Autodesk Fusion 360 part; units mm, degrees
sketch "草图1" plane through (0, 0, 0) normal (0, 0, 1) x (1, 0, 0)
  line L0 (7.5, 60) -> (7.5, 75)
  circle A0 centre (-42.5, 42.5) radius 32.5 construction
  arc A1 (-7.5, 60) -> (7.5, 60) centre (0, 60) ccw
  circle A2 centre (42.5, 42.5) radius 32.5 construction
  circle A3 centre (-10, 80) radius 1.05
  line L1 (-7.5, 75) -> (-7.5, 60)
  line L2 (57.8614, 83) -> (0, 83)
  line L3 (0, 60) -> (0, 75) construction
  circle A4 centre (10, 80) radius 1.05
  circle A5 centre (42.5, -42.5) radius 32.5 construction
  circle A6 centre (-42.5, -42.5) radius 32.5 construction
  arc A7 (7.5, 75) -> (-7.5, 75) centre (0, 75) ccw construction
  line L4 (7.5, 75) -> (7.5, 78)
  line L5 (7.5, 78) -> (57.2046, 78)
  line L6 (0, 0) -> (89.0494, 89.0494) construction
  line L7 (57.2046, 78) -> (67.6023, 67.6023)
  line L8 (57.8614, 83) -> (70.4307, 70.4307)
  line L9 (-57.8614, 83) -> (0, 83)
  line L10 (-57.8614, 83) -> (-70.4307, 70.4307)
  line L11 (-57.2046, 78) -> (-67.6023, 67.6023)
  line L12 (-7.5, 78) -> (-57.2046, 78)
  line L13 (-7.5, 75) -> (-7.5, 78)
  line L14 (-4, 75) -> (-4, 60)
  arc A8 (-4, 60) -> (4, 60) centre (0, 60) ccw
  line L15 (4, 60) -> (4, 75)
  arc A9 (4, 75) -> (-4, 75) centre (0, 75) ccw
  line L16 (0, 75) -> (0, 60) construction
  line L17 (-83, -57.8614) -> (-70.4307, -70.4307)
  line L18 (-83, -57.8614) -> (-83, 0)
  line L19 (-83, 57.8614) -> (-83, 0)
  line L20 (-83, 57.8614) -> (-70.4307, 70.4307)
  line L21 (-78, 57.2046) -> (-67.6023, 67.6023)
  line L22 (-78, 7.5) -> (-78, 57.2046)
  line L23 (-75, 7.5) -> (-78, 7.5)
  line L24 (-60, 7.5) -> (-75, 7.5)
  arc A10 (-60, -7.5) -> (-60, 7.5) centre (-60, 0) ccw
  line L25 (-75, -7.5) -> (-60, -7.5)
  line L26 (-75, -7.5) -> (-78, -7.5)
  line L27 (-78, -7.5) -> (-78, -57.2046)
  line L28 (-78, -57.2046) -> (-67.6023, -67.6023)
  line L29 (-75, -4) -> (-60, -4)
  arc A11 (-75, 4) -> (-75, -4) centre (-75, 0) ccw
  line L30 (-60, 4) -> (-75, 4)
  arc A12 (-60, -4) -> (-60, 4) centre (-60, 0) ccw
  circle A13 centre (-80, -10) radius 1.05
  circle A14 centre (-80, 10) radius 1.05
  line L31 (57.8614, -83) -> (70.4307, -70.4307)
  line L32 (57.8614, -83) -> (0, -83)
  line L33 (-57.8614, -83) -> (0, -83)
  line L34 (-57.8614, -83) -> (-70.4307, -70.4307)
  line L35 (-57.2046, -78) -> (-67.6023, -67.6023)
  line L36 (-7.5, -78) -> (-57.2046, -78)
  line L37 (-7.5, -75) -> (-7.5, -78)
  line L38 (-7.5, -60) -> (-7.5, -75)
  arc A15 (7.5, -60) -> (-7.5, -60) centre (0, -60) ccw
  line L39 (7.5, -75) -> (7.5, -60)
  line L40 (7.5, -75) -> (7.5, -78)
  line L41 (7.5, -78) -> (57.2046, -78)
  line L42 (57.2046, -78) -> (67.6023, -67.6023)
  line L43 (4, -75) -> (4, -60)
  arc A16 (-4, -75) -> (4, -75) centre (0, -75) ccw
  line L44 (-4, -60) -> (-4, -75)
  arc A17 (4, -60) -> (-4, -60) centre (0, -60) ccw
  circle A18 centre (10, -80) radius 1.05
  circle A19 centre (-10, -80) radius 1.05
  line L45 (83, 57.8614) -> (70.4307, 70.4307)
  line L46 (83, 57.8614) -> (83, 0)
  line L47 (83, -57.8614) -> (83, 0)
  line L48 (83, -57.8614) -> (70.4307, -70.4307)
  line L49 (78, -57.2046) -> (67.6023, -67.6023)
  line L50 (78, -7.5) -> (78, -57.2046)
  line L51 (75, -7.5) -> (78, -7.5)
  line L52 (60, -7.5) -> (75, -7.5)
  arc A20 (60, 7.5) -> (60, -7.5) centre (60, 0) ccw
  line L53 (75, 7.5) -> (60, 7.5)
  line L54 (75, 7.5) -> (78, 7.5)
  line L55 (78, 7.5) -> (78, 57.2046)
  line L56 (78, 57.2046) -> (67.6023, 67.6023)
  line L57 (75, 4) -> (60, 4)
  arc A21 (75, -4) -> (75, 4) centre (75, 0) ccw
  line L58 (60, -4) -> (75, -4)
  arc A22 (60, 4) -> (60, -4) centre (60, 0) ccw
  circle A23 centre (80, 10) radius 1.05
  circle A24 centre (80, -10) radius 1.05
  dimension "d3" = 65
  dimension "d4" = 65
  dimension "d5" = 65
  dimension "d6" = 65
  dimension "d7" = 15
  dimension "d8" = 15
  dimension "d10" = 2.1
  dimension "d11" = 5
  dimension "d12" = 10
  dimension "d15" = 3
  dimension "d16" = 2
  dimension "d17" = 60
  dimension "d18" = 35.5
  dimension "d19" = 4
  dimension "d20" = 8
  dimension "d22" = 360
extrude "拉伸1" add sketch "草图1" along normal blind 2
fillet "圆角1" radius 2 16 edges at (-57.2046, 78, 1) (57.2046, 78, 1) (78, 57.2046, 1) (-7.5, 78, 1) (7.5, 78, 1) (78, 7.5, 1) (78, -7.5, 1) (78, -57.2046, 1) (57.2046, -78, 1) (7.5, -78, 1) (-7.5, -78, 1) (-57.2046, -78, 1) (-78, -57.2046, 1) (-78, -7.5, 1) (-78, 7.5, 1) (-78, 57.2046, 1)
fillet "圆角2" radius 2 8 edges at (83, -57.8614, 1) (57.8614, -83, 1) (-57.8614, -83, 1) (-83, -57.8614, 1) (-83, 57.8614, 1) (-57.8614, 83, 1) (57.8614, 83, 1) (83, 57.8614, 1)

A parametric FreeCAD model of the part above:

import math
import FreeCAD as App
import Part
import Sketcher
from FreeCAD import Vector
Q = App.Units.Quantity


def edges_at(feature, points):
    """Names of the edges that pass closest to the given points."""
    edges = feature.Shape.Edges
    near = lambda p: min(range(len(edges)), key=lambda i: edges[i].distToShape(Part.Vertex(*p))[0])
    return sorted({f"Edge{near(p) + 1}" for p in points})

doc = App.newDocument("Part")
body = doc.addObject("PartDesign::Body", "Body")

# Sketch on XY plane
sketch1 = body.newObject("Sketcher::SketchObject", "Sketch")
sketch1.AttachmentSupport = (doc.getObject("XY_Plane"), [""])
sketch1.MapMode = "FlatFace"
sketch1.addGeometry(Part.LineSegment(Vector(83, 57.8614, 0), Vector(57.8614, 83, 0)), False)
sketch1.addGeometry(Part.LineSegment(Vector(57.8614, 83, 0), Vector(-57.8614, 83, 0)), False)
sketch1.addGeometry(Part.LineSegment(Vector(-57.8614, 83, 0), Vector(-83, 57.8614, 0)), False)
sketch1.addGeometry(Part.LineSegment(Vector(-83, 57.8614, 0), Vector(-83, -57.8614, 0)), False)
sketch1.addGeometry(Part.LineSegment(Vector(-83, -57.8614, 0), Vector(-57.8614, -83, 0)), False)
sketch1.addGeometry(Part.LineSegment(Vector(-57.8614, -83, 0), Vector(57.8614, -83, 0)), False)
sketch1.addGeometry(Part.LineSegment(Vector(57.8614, -83, 0), Vector(83, -57.8614, 0)), False)
sketch1.addGeometry(Part.LineSegment(Vector(83, -57.8614, 0), Vector(83, 57.8614, 0)), False)
sketch1.addGeometry(Part.Circle(Vector(-10, -80, 0), Vector(0, 0, 1), 1.05), False)
sketch1.addGeometry(Part.Circle(Vector(-80, -10, 0), Vector(0, 0, 1), 1.05), False)
sketch1.addGeometry(Part.Circle(Vector(10, -80, 0), Vector(0, 0, 1), 1.05), False)
sketch1.addGeometry(Part.LineSegment(Vector(4, -60, 0), Vector(4, -75, 0)), False)
sketch1.addGeometry(Part.ArcOfCircle(Part.Circle(Vector(0, -75, 0), Vector(0, 0, 1), 4), math.radians(180), math.radians(360)), False)
sketch1.addGeometry(Part.LineSegment(Vector(-4, -75, 0), Vector(-4, -60, 0)), False)
sketch1.addGeometry(Part.ArcOfCircle(Part.Circle(Vector(0, -60, 0), Vector(0, 0, 1), 4), math.radians(0), math.radians(180)), False)
sketch1.addGeometry(Part.Circle(Vector(80, -10, 0), Vector(0, 0, 1), 1.05), False)
sketch1.addGeometry(Part.Circle(Vector(-80, 10, 0), Vector(0, 0, 1), 1.05), False)
sketch1.addGeometry(Part.LineSegment(Vector(-60, -4, 0), Vector(-75, -4, 0)), False)
sketch1.addGeometry(Part.ArcOfCircle(Part.Circle(Vector(-75, 0, 0), Vector(0, 0, 1), 4), math.radians(90), math.radians(270)), False)
sketch1.addGeometry(Part.LineSegment(Vector(-75, 4, 0), Vector(-60, 4, 0)), False)
sketch1.addGeometry(Part.ArcOfCircle(Part.Circle(Vector(-60, 0, 0), Vector(0, 0, 1), 4), math.radians(-90), math.radians(90)), False)
sketch1.addGeometry(Part.Circle(Vector(-10, 80, 0), Vector(0, 0, 1), 1.05), False)
sketch1.addGeometry(Part.ArcOfCircle(Part.Circle(Vector(0, 60, 0), Vector(0, 0, 1), 7.5), math.radians(180), math.radians(360)), False)
sketch1.addGeometry(Part.LineSegment(Vector(7.5, 60, 0), Vector(7.5, 78, 0)), False)
sketch1.addGeometry(Part.LineSegment(Vector(7.5, 78, 0), Vector(57.2046, 78, 0)), False)
sketch1.addGeometry(Part.LineSegment(Vector(57.2046, 78, 0), Vector(78, 57.2046, 0)), False)
sketch1.addGeometry(Part.LineSegment(Vector(78, 57.2046, 0), Vector(78, 7.5, 0)), False)
sketch1.addGeometry(Part.LineSegment(Vector(78, 7.5, 0), Vector(60, 7.5, 0)), False)
sketch1.addGeometry(Part.ArcOfCircle(Part.Circle(Vector(60, 0, 0), Vector(0, 0, 1), 7.5), math.radians(90), math.radians(270)), False)
sketch1.addGeometry(Part.LineSegment(Vector(60, -7.5, 0), Vector(78, -7.5, 0)), False)
sketch1.addGeometry(Part.LineSegment(Vector(78, -7.5, 0), Vector(78, -57.2046, 0)), False)
sketch1.addGeometry(Part.LineSegment(Vector(78, -57.2046, 0), Vector(57.2046, -78, 0)), False)
sketch1.addGeometry(Part.LineSegment(Vector(57.2046, -78, 0), Vector(7.5, -78, 0)), False)
sketch1.addGeometry(Part.LineSegment(Vector(7.5, -78, 0), Vector(7.5, -60, 0)), False)
sketch1.addGeometry(Part.ArcOfCircle(Part.Circle(Vector(0, -60, 0), Vector(0, 0, 1), 7.5), math.radians(0), math.radians(180)), False)
sketch1.addGeometry(Part.LineSegment(Vector(-7.5, -60, 0), Vector(-7.5, -78, 0)), False)
sketch1.addGeometry(Part.LineSegment(Vector(-7.5, -78, 0), Vector(-57.2046, -78, 0)), False)
sketch1.addGeometry(Part.LineSegment(Vector(-57.2046, -78, 0), Vector(-78, -57.2046, 0)), False)
sketch1.addGeometry(Part.LineSegment(Vector(-78, -57.2046, 0), Vector(-78, -7.5, 0)), False)
sketch1.addGeometry(Part.LineSegment(Vector(-78, -7.5, 0), Vector(-60, -7.5, 0)), False)
sketch1.addGeometry(Part.ArcOfCircle(Part.Circle(Vector(-60, 0, 0), Vector(0, 0, 1), 7.5), math.radians(-90), math.radians(90)), False)
sketch1.addGeometry(Part.LineSegment(Vector(-60, 7.5, 0), Vector(-78, 7.5, 0)), False)
sketch1.addGeometry(Part.LineSegment(Vector(-78, 7.5, 0), Vector(-78, 57.2046, 0)), False)
sketch1.addGeometry(Part.LineSegment(Vector(-78, 57.2046, 0), Vector(-57.2046, 78, 0)), False)
sketch1.addGeometry(Part.LineSegment(Vector(-57.2046, 78, 0), Vector(-7.5, 78, 0)), False)
sketch1.addGeometry(Part.LineSegment(Vector(-7.5, 78, 0), Vector(-7.5, 60, 0)), False)
sketch1.addGeometry(Part.LineSegment(Vector(60, 4, 0), Vector(75, 4, 0)), False)
sketch1.addGeometry(Part.ArcOfCircle(Part.Circle(Vector(75, 0, 0), Vector(0, 0, 1), 4), math.radians(-90), math.radians(90)), False)
sketch1.addGeometry(Part.LineSegment(Vector(75, -4, 0), Vector(60, -4, 0)), False)
sketch1.addGeometry(Part.ArcOfCircle(Part.Circle(Vector(60, 0, 0), Vector(0, 0, 1), 4), math.radians(90), math.radians(270)), False)
sketch1.addGeometry(Part.Circle(Vector(80, 10, 0), Vector(0, 0, 1), 1.05), False)
sketch1.addGeometry(Part.LineSegment(Vector(-4, 60, 0), Vector(-4, 75, 0)), False)
sketch1.addGeometry(Part.ArcOfCircle(Part.Circle(Vector(0, 75, 0), Vector(0, 0, 1), 4), math.radians(0), math.radians(180)), False)
sketch1.addGeometry(Part.LineSegment(Vector(4, 75, 0), Vector(4, 60, 0)), False)
sketch1.addGeometry(Part.ArcOfCircle(Part.Circle(Vector(0, 60, 0), Vector(0, 0, 1), 4), math.radians(180), math.radians(360)), False)
sketch1.addGeometry(Part.Circle(Vector(10, 80, 0), Vector(0, 0, 1), 1.05), False)
sketch1.addConstraint(Sketcher.Constraint("Coincident", 0, 2, 1, 1))
sketch1.addConstraint(Sketcher.Constraint("Coincident", 1, 2, 2, 1))
sketch1.addConstraint(Sketcher.Constraint("Coincident", 2, 2, 3, 1))
sketch1.addConstraint(Sketcher.Constraint("Coincident", 3, 2, 4, 1))
sketch1.addConstraint(Sketcher.Constraint("Coincident", 4, 2, 5, 1))
sketch1.addConstraint(Sketcher.Constraint("Coincident", 5, 2, 6, 1))
sketch1.addConstraint(Sketcher.Constraint("Coincident", 6, 2, 7, 1))
sketch1.addConstraint(Sketcher.Constraint("Coincident", 7, 2, 0, 1))
sketch1.addConstraint(Sketcher.Constraint("Tangent", 11, 2, 12, 2))
sketch1.addConstraint(Sketcher.Constraint("Tangent", 12, 1, 13, 1))
sketch1.addConstraint(Sketcher.Constraint("Tangent", 13, 2, 14, 2))
sketch1.addConstraint(Sketcher.Constraint("Tangent", 14, 1, 11, 1))
sketch1.addConstraint(Sketcher.Constraint("Tangent", 17, 2, 18, 2))
sketch1.addConstraint(Sketcher.Constraint("Tangent", 18, 1, 19, 1))
sketch1.addConstraint(Sketcher.Constraint("Tangent", 19, 2, 20, 2))
sketch1.addConstraint(Sketcher.Constraint("Tangent", 20, 1, 17, 1))
sketch1.addConstraint(Sketcher.Constraint("Tangent", 22, 2, 23, 1))
sketch1.addConstraint(Sketcher.Constraint("Coincident", 23, 2, 24, 1))
sketch1.addConstraint(Sketcher.Constraint("Coincident", 24, 2, 25, 1))
sketch1.addConstraint(Sketcher.Constraint("Coincident", 25, 2, 26, 1))
sketch1.addConstraint(Sketcher.Constraint("Coincident", 26, 2, 27, 1))
sketch1.addConstraint(Sketcher.Constraint("Tangent", 27, 2, 28, 1))
sketch1.addConstraint(Sketcher.Constraint("Tangent", 28, 2, 29, 1))
sketch1.addConstraint(Sketcher.Constraint("Coincident", 29, 2, 30, 1))
sketch1.addConstraint(Sketcher.Constraint("Coincident", 30, 2, 31, 1))
sketch1.addConstraint(Sketcher.Constraint("Coincident", 31, 2, 32, 1))
sketch1.addConstraint(Sketcher.Constraint("Coincident", 32, 2, 33, 1))
sketch1.addConstraint(Sketcher.Constraint("Tangent", 33, 2, 34, 1))
sketch1.addConstraint(Sketcher.Constraint("Tangent", 34, 2, 35, 1))
sketch1.addConstraint(Sketcher.Constraint("Coincident", 35, 2, 36, 1))
sketch1.addConstraint(Sketcher.Constraint("Coincident", 36, 2, 37, 1))
sketch1.addConstraint(Sketcher.Constraint("Coincident", 37, 2, 38, 1))
sketch1.addConstraint(Sketcher.Constraint("Coincident", 38, 2, 39, 1))
sketch1.addConstraint(Sketcher.Constraint("Tangent", 39, 2, 40, 1))
sketch1.addConstraint(Sketcher.Constraint("Tangent", 40, 2, 41, 1))
sketch1.addConstraint(Sketcher.Constraint("Coincident", 41, 2, 42, 1))
sketch1.addConstraint(Sketcher.Constraint("Coincident", 42, 2, 43, 1))
sketch1.addConstraint(Sketcher.Constraint("Coincident", 43, 2, 44, 1))
sketch1.addConstraint(Sketcher.Constraint("Coincident", 44, 2, 45, 1))
sketch1.addConstraint(Sketcher.Constraint("Tangent", 45, 2, 22, 1))
sketch1.addConstraint(Sketcher.Constraint("Tangent", 46, 2, 47, 2))
sketch1.addConstraint(Sketcher.Constraint("Tangent", 47, 1, 48, 1))
sketch1.addConstraint(Sketcher.Constraint("Tangent", 48, 2, 49, 2))
sketch1.addConstraint(Sketcher.Constraint("Tangent", 49, 1, 46, 1))
sketch1.addConstraint(Sketcher.Constraint("Tangent", 51, 2, 52, 2))
sketch1.addConstraint(Sketcher.Constraint("Tangent", 52, 1, 53, 1))
sketch1.addConstraint(Sketcher.Constraint("Tangent", 53, 2, 54, 2))
sketch1.addConstraint(Sketcher.Constraint("Tangent", 54, 1, 51, 1))
sketch1.addConstraint(Sketcher.Constraint("Horizontal", 1))
sketch1.addConstraint(Sketcher.Constraint("Vertical", 3))
sketch1.addConstraint(Sketcher.Constraint("Horizontal", 5))
sketch1.addConstraint(Sketcher.Constraint("Vertical", 7))
sketch1.addConstraint(Sketcher.Constraint("Vertical", 11))
sketch1.addConstraint(Sketcher.Constraint("Vertical", 13))
sketch1.addConstraint(Sketcher.Constraint("Horizontal", 17))
sketch1.addConstraint(Sketcher.Constraint("Horizontal", 19))
sketch1.addConstraint(Sketcher.Constraint("Vertical", 23))
sketch1.addConstraint(Sketcher.Constraint("Horizontal", 24))
sketch1.addConstraint(Sketcher.Constraint("Vertical", 26))
sketch1.addConstraint(Sketcher.Constraint("Horizontal", 27))
sketch1.addConstraint(Sketcher.Constraint("Horizontal", 29))
sketch1.addConstraint(Sketcher.Constraint("Vertical", 30))
sketch1.addConstraint(Sketcher.Constraint("Horizontal", 32))
sketch1.addConstraint(Sketcher.Constraint("Vertical", 33))
sketch1.addConstraint(Sketcher.Constraint("Vertical", 35))
sketch1.addConstraint(Sketcher.Constraint("Horizontal", 36))
sketch1.addConstraint(Sketcher.Constraint("Vertical", 38))
sketch1.addConstraint(Sketcher.Constraint("Horizontal", 39))
sketch1.addConstraint(Sketcher.Constraint("Horizontal", 41))
sketch1.addConstraint(Sketcher.Constraint("Vertical", 42))
sketch1.addConstraint(Sketcher.Constraint("Horizontal", 44))
sketch1.addConstraint(Sketcher.Constraint("Vertical", 45))
sketch1.addConstraint(Sketcher.Constraint("Horizontal", 46))
sketch1.addConstraint(Sketcher.Constraint("Horizontal", 48))
sketch1.addConstraint(Sketcher.Constraint("Vertical", 51))
sketch1.addConstraint(Sketcher.Constraint("Vertical", 53))
sketch1.addConstraint(Sketcher.Constraint("Coincident", 34, 3, 14, 3))
sketch1.addConstraint(Sketcher.Constraint("Coincident", 40, 3, 20, 3))
sketch1.addConstraint(Sketcher.Constraint("Coincident", 49, 3, 28, 3))
sketch1.addConstraint(Sketcher.Constraint("Coincident", 54, 3, 22, 3))
sketch1.addConstraint(Sketcher.Constraint("Equal", 8, 9))
sketch1.addConstraint(Sketcher.Constraint("Equal", 9, 10))
sketch1.addConstraint(Sketcher.Constraint("Equal", 10, 15))
sketch1.addConstraint(Sketcher.Constraint("Equal", 15, 16))
sketch1.addConstraint(Sketcher.Constraint("Equal", 14, 18))
sketch1.addConstraint(Sketcher.Constraint("Equal", 16, 21))
sketch1.addConstraint(Sketcher.Constraint("Equal", 22, 28))
sketch1.addConstraint(Sketcher.Constraint("Equal", 28, 34))
sketch1.addConstraint(Sketcher.Constraint("Equal", 34, 40))
sketch1.addConstraint(Sketcher.Constraint("Equal", 20, 47))
sketch1.addConstraint(Sketcher.Constraint("Equal", 21, 50))
sketch1.addConstraint(Sketcher.Constraint("Equal", 49, 52))
sketch1.addConstraint(Sketcher.Constraint("Equal", 50, 55))
sketch1.addConstraint(Sketcher.Constraint("Symmetric", 15, 3, 16, 3, -1, 1))
sketch1.addConstraint(Sketcher.Constraint("Symmetric", 10, 3, 21, 3, -1, 1))
sketch1.addConstraint(Sketcher.Constraint("Symmetric", 14, 3, 22, 3, -1, 1))
sketch1.addConstraint(Sketcher.Constraint("Symmetric", 20, 3, 28, 3, -1, 1))
sketch1.addConstraint(Sketcher.Constraint("Symmetric", 9, 3, 50, 3, -1, 1))
sketch1.addConstraint(Sketcher.Constraint("Symmetric", 8, 3, 55, 3, -1, 1))
sketch1.addConstraint(Sketcher.Constraint("Symmetric", 0, 2, 4, 2, -1, 1))
sketch1.addConstraint(Sketcher.Constraint("Symmetric", 2, 2, 6, 2, -1, 1))
sketch1.addConstraint(Sketcher.Constraint("Symmetric", 24, 2, 36, 2, -1, 1))
sketch1.addConstraint(Sketcher.Constraint("Symmetric", 25, 2, 37, 2, -1, 1))
sketch1.addConstraint(Sketcher.Constraint("Symmetric", 30, 2, 42, 2, -1, 1))
sketch1.addConstraint(Sketcher.Constraint("Symmetric", 31, 2, 43, 2, -1, 1))
sketch1.addConstraint(Sketcher.Constraint("Symmetric", 8, 3, 10, 3, -2))
sketch1.addConstraint(Sketcher.Constraint("Symmetric", 9, 3, 15, 3, -2))
sketch1.addConstraint(Sketcher.Constraint("Symmetric", 18, 3, 47, 3, -2))
sketch1.addConstraint(Sketcher.Constraint("Symmetric", 32, 2, 35, 2, -2))
sketch1.addConstraint(Sketcher.Constraint("Symmetric", 30, 2, 37, 2, -2))
sketch1.addConstraint(Sketcher.Constraint("Perpendicular", 0, 2))
sketch1.addConstraint(Sketcher.Constraint("Perpendicular", 2, 4))
sketch1.addConstraint(Sketcher.Constraint("Perpendicular", 4, 6))
sketch1.addConstraint(Sketcher.Constraint("Perpendicular", 6, 25))
sketch1.addConstraint(Sketcher.Constraint("Perpendicular", 25, 31))
sketch1.addConstraint(Sketcher.Constraint("Horizontal", 3, 2, 6, 2))
sketch1.addConstraint(Sketcher.Constraint("Vertical", 1, 2, 4, 2))
sketch1.addConstraint(Sketcher.Constraint("Equal", 5, 3))
sketch1.addConstraint(Sketcher.Constraint("Equal", 48, 11))
sketch1.addConstraint(Sketcher.Constraint("Equal", 41, 23))
sketch1.addConstraint(Sketcher.Constraint("Equal", 44, 26))
sketch1.addConstraint(Sketcher.Constraint("Equal", 13, 51))
sketch1.addConstraint(Sketcher.Constraint("Radius", 12, Q("4 mm")))
sketch1.addConstraint(Sketcher.Constraint("Diameter", 8, Q("2.1 mm")))
sketch1.addConstraint(Sketcher.Constraint("Radius", 22, Q("7.5 mm")))
sketch1.addConstraint(Sketcher.Constraint("DistanceX", 17, 2, 17, 1, Q("15 mm")))
sketch1.addConstraint(Sketcher.Constraint("DistanceX", 8, 3, -1, 1, Q("10 mm")))
sketch1.addConstraint(Sketcher.Constraint("DistanceY", 9, 3, -1, 1, Q("10 mm")))
sketch1.addConstraint(Sketcher.Constraint("DistanceY", 14, 3, -1, 1, Q("60 mm")))
sketch1.addConstraint(Sketcher.Constraint("DistanceX", 27, 2, 27, 1, Q("18 mm")))
sketch1.addConstraint(Sketcher.Constraint("DistanceY", 8, 3, -1, 1, Q("80 mm")))
sketch1.addConstraint(Sketcher.Constraint("DistanceX", 9, 3, -1, 1, Q("80 mm")))
sketch1.addConstraint(Sketcher.Constraint("DistanceY", -1, 1, 0, 2, Q("83 mm")))
sketch1.addConstraint(Sketcher.Constraint("DistanceX", 1, 2, 1, 1, Q("115.7228 mm")))
sketch1.addConstraint(Sketcher.Constraint("DistanceX", 24, 1, 24, 2, Q("49.7046 mm")))
pad1 = body.newObject("PartDesign::Pad", "Pad")
pad1.Profile = sketch1
pad1.Length = 2
doc.recompute()

fillet = body.newObject("PartDesign::Fillet", "Fillet")
fillet.Base = (pad1, edges_at(pad1, [
    (-57.205, 78, 1),
    (57.205, 78, 1),
    (78, 57.205, 1),
    (-7.5, 78, 1),
    (7.5, 78, 1),
    (78, 7.5, 1),
    (78, -7.5, 1),
    (78, -57.205, 1),
    (57.205, -78, 1),
    (7.5, -78, 1),
    (-7.5, -78, 1),
    (-57.205, -78, 1),
    (-78, -57.205, 1),
    (-78, -7.5, 1),
    (-78, 7.5, 1),
    (-78, 57.205, 1),
]))
fillet.Radius = 2
doc.recompute()

fillet2 = body.newObject("PartDesign::Fillet", "Fillet001")
fillet2.Base = (fillet, edges_at(fillet, [
    (83, -57.861, 1),
    (57.861, -83, 1),
    (-57.861, -83, 1),
    (-83, -57.861, 1),
    (-83, 57.861, 1),
    (-57.861, 83, 1),
    (57.861, 83, 1),
    (83, 57.861, 1),
]))
fillet2.Radius = 2

doc.recompute()
